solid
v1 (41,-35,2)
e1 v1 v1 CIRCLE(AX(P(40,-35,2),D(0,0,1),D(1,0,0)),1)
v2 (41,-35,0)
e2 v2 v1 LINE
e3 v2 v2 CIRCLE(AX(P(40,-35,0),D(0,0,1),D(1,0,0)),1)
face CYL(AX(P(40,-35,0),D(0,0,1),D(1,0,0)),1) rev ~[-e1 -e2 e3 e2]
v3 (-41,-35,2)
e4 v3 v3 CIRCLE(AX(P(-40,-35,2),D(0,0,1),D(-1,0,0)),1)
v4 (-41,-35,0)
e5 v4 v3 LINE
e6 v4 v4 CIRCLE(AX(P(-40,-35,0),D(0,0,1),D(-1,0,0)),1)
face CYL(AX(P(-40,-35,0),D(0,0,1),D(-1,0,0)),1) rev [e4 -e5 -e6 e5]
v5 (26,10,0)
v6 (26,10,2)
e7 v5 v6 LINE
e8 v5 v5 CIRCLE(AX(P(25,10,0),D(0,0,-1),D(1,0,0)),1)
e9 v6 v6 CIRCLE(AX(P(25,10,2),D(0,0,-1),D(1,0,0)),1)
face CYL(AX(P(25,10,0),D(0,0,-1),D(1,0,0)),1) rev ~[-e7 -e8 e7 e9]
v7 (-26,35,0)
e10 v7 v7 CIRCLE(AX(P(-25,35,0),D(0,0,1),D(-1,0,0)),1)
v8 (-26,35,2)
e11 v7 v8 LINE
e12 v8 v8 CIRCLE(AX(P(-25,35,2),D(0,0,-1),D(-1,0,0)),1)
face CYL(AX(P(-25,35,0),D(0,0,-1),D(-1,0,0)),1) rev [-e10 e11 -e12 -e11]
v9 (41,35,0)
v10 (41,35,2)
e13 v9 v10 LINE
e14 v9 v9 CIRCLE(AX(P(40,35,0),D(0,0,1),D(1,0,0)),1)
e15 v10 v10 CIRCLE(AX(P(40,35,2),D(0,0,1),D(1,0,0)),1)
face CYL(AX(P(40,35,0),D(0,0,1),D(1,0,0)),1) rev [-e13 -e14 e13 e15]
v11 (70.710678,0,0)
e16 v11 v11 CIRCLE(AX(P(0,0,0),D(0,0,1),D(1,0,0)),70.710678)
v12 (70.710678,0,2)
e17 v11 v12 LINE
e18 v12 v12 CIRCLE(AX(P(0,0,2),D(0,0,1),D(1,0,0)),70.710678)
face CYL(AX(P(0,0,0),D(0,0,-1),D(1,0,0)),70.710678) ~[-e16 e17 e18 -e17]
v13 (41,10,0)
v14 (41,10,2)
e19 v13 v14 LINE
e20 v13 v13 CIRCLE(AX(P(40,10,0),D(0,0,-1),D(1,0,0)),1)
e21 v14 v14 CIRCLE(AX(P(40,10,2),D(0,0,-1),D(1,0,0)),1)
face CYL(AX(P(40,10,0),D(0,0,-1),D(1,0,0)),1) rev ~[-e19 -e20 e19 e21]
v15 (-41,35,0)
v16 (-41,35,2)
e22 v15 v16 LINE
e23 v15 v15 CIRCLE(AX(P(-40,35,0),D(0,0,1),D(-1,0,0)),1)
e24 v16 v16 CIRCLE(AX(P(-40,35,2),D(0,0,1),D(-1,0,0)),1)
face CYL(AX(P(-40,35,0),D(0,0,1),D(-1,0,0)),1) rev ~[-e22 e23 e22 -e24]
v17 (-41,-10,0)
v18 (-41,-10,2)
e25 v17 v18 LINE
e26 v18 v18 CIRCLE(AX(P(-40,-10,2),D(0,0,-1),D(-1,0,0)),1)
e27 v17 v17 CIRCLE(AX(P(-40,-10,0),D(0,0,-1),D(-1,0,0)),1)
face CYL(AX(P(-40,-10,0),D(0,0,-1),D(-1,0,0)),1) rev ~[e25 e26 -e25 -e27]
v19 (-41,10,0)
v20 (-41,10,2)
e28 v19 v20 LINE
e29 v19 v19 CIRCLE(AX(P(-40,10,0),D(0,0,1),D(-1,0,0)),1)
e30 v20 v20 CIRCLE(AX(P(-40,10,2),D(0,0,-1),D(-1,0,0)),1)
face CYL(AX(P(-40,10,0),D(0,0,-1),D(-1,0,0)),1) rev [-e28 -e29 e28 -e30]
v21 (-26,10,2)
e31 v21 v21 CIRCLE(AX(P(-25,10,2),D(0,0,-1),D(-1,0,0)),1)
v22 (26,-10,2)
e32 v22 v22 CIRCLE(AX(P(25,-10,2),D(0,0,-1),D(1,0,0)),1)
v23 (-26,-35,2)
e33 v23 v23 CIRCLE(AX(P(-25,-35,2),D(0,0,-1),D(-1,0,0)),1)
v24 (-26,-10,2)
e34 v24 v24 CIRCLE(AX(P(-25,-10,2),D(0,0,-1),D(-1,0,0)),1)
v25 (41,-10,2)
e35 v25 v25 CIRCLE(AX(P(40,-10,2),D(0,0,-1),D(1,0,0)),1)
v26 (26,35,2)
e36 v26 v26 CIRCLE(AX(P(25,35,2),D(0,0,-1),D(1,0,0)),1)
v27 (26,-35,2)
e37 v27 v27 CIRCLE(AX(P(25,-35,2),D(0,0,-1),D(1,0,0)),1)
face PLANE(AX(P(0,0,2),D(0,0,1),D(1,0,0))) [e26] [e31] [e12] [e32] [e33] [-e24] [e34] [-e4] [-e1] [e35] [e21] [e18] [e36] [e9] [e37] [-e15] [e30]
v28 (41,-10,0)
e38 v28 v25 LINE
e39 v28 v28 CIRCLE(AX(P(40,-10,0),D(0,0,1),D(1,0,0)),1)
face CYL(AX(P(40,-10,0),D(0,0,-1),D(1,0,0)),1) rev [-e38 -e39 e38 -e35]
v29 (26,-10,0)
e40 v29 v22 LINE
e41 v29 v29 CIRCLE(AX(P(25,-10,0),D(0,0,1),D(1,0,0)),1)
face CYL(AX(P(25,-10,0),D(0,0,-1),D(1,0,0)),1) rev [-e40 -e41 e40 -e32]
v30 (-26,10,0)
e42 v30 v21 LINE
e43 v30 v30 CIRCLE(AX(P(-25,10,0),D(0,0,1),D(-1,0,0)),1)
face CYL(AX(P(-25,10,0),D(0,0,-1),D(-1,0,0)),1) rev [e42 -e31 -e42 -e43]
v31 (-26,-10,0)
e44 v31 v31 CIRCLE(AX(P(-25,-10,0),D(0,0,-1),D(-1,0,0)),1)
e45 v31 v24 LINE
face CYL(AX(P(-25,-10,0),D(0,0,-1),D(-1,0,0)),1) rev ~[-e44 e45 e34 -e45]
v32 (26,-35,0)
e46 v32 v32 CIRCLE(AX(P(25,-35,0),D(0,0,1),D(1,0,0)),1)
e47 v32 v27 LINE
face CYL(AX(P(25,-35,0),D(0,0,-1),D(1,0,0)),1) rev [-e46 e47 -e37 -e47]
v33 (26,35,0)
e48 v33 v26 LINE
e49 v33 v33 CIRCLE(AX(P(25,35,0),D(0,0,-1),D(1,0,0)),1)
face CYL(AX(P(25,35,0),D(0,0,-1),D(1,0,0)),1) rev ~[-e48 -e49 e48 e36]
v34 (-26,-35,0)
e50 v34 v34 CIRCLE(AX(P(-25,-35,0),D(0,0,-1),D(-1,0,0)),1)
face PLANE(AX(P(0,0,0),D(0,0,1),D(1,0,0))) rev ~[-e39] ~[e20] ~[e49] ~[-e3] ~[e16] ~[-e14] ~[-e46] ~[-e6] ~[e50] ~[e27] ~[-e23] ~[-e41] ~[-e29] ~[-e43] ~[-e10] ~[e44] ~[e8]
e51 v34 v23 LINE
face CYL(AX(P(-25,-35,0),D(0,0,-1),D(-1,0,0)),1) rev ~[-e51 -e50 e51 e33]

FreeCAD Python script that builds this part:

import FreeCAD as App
import Part
import Sketcher

V = App.Vector

doc = App.newDocument("Part")
params = doc.addObject("Spreadsheet::Sheet", "Params")
for row, (alias, value) in enumerate([
    ("pad1_length", "2 mm"),
    ("sketch2_diameter", "2 mm"),
    ("pocket1_length", "202.039996 mm"),
    ("sketch3_diameter", "2 mm"),
    ("pocket2_length", "202.039996 mm"),
], start=1):
    params.set(f"A{row}", alias)
    params.set(f"B{row}", "=" + value)
    params.setAlias(f"B{row}", alias)

body = doc.addObject("PartDesign::Body", "Body")

# Sketch on XY plane
sketch1 = body.newObject("Sketcher::SketchObject", "Sketch")
sketch1.AttachmentSupport = (doc.getObject("XY_Plane"), [""])
sketch1.MapMode = "FlatFace"
sketch1.addGeometry(Part.Circle(V(0, 0, 0), V(0, 0, 1), 71), False)
sketch1.addConstraint(Sketcher.Constraint("Coincident", 0, 3, -1, 1))
sketch1.addConstraint(Sketcher.Constraint("Diameter", 0, 141.421356))
pad1 = body.newObject("PartDesign::Pad", "Pad")
pad1.Profile = sketch1
pad1.setExpression("Length", "Params.pad1_length")

# Sketch on XY plane
sketch2 = body.newObject("Sketcher::SketchObject", "Sketch001")
sketch2.AttachmentSupport = (doc.getObject("XY_Plane"), [""])
sketch2.MapMode = "FlatFace"
sketch2.addGeometry(Part.Circle(V(25, -10, 0), V(0, 0, 1), 1), False)
sketch2.addGeometry(Part.Circle(V(40, -10, 0), V(0, 0, 1), 1), False)
sketch2.addGeometry(Part.Circle(V(25, -35, 0), V(0, 0, 1), 1), False)
sketch2.addGeometry(Part.Circle(V(40, -35, 0), V(0, 0, 1), 1), False)
sketch2.addConstraint(Sketcher.Constraint("Equal", 0, 1))
sketch2.addConstraint(Sketcher.Constraint("Equal", 1, 2))
sketch2.addConstraint(Sketcher.Constraint("Equal", 2, 3))
sketch2.addConstraint(Sketcher.Constraint("Horizontal", 0, 3, 1, 3))
sketch2.addConstraint(Sketcher.Constraint("Horizontal", 2, 3, 3, 3))
sketch2.addConstraint(Sketcher.Constraint("Vertical", 0, 3, 2, 3))
sketch2.addConstraint(Sketcher.Constraint("Vertical", 1, 3, 3, 3))
sketch2.addConstraint(Sketcher.Constraint("Diameter", 0, 2.0))
sketch2.addConstraint(Sketcher.Constraint("DistanceX", -1, 1, 0, 3, 25.0))
sketch2.addConstraint(Sketcher.Constraint("DistanceY", 0, 3, -1, 1, 10.0))
sketch2.addConstraint(Sketcher.Constraint("DistanceX", -1, 1, 1, 3, 40.0))
sketch2.addConstraint(Sketcher.Constraint("DistanceY", 2, 3, -1, 1, 35.0))
sketch2.setExpression("Constraints[7]", "Params.sketch2_diameter")
pocket1 = body.newObject("PartDesign::Pocket", "Pocket")
pocket1.Profile = sketch2
pocket1.setExpression("Length", "Params.pocket1_length")
pocket1.Midplane = True
doc.recompute()

mirrored = body.newObject("PartDesign::Mirrored", "Mirrored")
mirrored.Originals = [pocket1]
mirrored.MirrorPlane = (doc.getObject("YZ_Plane"), [""])
body.Tip = mirrored
doc.recompute()

mirrored2 = body.newObject("PartDesign::Mirrored", "Mirrored001")
mirrored2.Originals = [pocket1]
mirrored2.MirrorPlane = (doc.getObject("XZ_Plane"), [""])
body.Tip = mirrored2

# Sketch on XY plane
sketch3 = body.newObject("Sketcher::SketchObject", "Sketch002")
sketch3.AttachmentSupport = (doc.getObject("XY_Plane"), [""])
sketch3.MapMode = "FlatFace"
sketch3.addGeometry(Part.Circle(V(-25, 10, 0), V(0, 0, 1), 1), False)
sketch3.addGeometry(Part.Circle(V(-40, 10, 0), V(0, 0, 1), 1), False)
sketch3.addGeometry(Part.Circle(V(-25, 35, 0), V(0, 0, 1), 1), False)
sketch3.addGeometry(Part.Circle(V(-40, 35, 0), V(0, 0, 1), 1), False)
sketch3.addConstraint(Sketcher.Constraint("Equal", 0, 1))
sketch3.addConstraint(Sketcher.Constraint("Equal", 1, 2))
sketch3.addConstraint(Sketcher.Constraint("Equal", 2, 3))
sketch3.addConstraint(Sketcher.Constraint("Horizontal", 0, 3, 1, 3))
sketch3.addConstraint(Sketcher.Constraint("Horizontal", 2, 3, 3, 3))
sketch3.addConstraint(Sketcher.Constraint("Vertical", 0, 3, 2, 3))
sketch3.addConstraint(Sketcher.Constraint("Vertical", 1, 3, 3, 3))
sketch3.addConstraint(Sketcher.Constraint("Diameter", 0, 2.0))
sketch3.addConstraint(Sketcher.Constraint("DistanceX", 0, 3, -1, 1, 25.0))
sketch3.addConstraint(Sketcher.Constraint("DistanceY", -1, 1, 0, 3, 10.0))
sketch3.addConstraint(Sketcher.Constraint("DistanceX", 1, 3, -1, 1, 40.0))
sketch3.addConstraint(Sketcher.Constraint("DistanceY", -1, 1, 2, 3, 35.0))
sketch3.setExpression("Constraints[7]", "Params.sketch3_diameter")
pocket2 = body.newObject("PartDesign::Pocket", "Pocket001")
pocket2.Profile = sketch3
pocket2.setExpression("Length", "Params.pocket2_length")
pocket2.Midplane = True

doc.recompute()
